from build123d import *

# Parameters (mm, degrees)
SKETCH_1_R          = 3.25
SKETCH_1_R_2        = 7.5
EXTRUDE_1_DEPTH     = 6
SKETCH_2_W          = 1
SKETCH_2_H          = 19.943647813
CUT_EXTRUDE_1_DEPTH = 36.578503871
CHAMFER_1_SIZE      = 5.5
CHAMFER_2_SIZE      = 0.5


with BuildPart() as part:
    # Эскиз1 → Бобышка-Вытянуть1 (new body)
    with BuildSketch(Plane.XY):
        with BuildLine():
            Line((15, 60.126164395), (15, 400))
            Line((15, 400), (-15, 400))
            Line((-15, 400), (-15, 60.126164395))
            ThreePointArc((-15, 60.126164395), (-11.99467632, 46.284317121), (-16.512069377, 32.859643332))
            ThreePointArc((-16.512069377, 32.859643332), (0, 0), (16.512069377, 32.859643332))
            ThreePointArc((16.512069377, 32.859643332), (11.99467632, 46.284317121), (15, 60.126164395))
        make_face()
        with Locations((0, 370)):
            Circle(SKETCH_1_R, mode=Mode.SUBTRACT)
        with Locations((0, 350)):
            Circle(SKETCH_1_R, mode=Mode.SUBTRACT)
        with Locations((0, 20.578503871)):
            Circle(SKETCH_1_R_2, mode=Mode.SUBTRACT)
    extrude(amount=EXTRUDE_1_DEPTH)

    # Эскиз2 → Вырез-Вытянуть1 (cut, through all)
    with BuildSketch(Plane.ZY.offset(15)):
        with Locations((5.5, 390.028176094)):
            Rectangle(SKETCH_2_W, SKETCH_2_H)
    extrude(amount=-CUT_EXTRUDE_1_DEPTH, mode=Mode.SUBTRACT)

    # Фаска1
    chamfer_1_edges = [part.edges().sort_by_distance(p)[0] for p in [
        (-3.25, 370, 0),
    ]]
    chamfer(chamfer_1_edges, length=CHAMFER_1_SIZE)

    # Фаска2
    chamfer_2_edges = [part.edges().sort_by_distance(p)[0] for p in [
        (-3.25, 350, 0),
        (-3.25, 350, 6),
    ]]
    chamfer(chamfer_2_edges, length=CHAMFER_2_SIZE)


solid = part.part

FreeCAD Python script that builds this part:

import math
import FreeCAD as App
import Part
import Sketcher
from FreeCAD import Vector


def edges_at(feature, points):
    """Names of the edges that pass closest to the given points."""
    edges = feature.Shape.Edges
    near = lambda p: min(range(len(edges)), key=lambda i: edges[i].distToShape(Part.Vertex(*p))[0])
    return sorted({f"Edge{near(p) + 1}" for p in points})


def add_polygon(sketch, points):
    """Adds a closed chain of lines whose ends are joined by coincident constraints."""
    first, n = sketch.GeometryCount, len(points)
    for a, b in zip(points, points[1:] + points[:1]):
        sketch.addGeometry(Part.LineSegment(App.Vector(*a, 0), App.Vector(*b, 0)), False)
    for i in range(n):
        sketch.addConstraint(Sketcher.Constraint("Coincident", first + i, 2, first + (i + 1) % n, 1))

doc = App.newDocument("Part")
params = doc.addObject("Spreadsheet::Sheet", "Params")
for row, (alias, value) in enumerate([
    ("sketch1_diameter", "15 mm"),
    ("sketch1_diameter2", "6.5 mm"),
    ("sketch1_width", "30 mm"),
    ("pad1_length", "6 mm"),
    ("sketch2_height", "1 mm"),
    ("chamfer_size", "5.5 mm"),
    ("chamfer2_size", "0.5 mm"),
], start=1):
    params.set(f"A{row}", alias)
    params.set(f"B{row}", "=" + value)
    params.setAlias(f"B{row}", alias)

body = doc.addObject("PartDesign::Body", "Body")

sketch1 = doc.addObject("Sketcher::SketchObject", "Sketch")
body.addObject(sketch1)
sketch1.AttachmentSupport = (doc.XY_Plane, [""])
sketch1.MapMode = "FlatFace"
sketch1.addGeometry(Part.LineSegment(Vector(15, 60.1, 0), Vector(15, 400, 0)), False)
sketch1.addGeometry(Part.LineSegment(Vector(15, 400, 0), Vector(-15, 400, 0)), False)
sketch1.addGeometry(Part.LineSegment(Vector(-15, 400, 0), Vector(-15, 60.1, 0)), False)
sketch1.addGeometry(Part.ArcOfCircle(Part.Circle(Vector(-38.6, 47.8, 0), Vector(0, 0, 1), 26.6), math.radians(-34), math.radians(28)), False)
sketch1.addGeometry(Part.ArcOfCircle(Part.Circle(Vector(0, 20.6, 0), Vector(0, 0, 1), 20.6), math.radians(143), math.radians(397)), False)
sketch1.addGeometry(Part.ArcOfCircle(Part.Circle(Vector(38.6, 47.8, 0), Vector(0, 0, 1), 26.6), math.radians(152), math.radians(214)), False)
sketch1.addGeometry(Part.Circle(Vector(0, 20.6, 0), Vector(0, 0, 1), 7.5), False)
sketch1.addGeometry(Part.Circle(Vector(0, 350, 0), Vector(0, 0, 1), 3.2), False)
sketch1.addGeometry(Part.Circle(Vector(0, 370, 0), Vector(0, 0, 1), 3.2), False)
sketch1.addConstraint(Sketcher.Constraint("Coincident", 0, 2, 1, 1))
sketch1.addConstraint(Sketcher.Constraint("Coincident", 1, 2, 2, 1))
sketch1.addConstraint(Sketcher.Constraint("Coincident", 2, 2, 3, 2))
sketch1.addConstraint(Sketcher.Constraint("Coincident", 3, 1, 4, 1))
sketch1.addConstraint(Sketcher.Constraint("Coincident", 4, 2, 5, 2))
sketch1.addConstraint(Sketcher.Constraint("Coincident", 5, 1, 0, 1))
sketch1.addConstraint(Sketcher.Constraint("Vertical", 0))
sketch1.addConstraint(Sketcher.Constraint("Horizontal", 1))
sketch1.addConstraint(Sketcher.Constraint("Vertical", 2))
sketch1.addConstraint(Sketcher.Constraint("Coincident", 6, 3, 4, 3))
sketch1.addConstraint(Sketcher.Constraint("Equal", 3, 5))
sketch1.addConstraint(Sketcher.Constraint("Equal", 7, 8))
sketch1.addConstraint(Sketcher.Constraint("Symmetric", 3, 3, 5, 3, -2))
sketch1.addConstraint(Sketcher.Constraint("PointOnObject", 4, 3, -2))
sketch1.addConstraint(Sketcher.Constraint("PointOnObject", 7, 3, -2))
sketch1.addConstraint(Sketcher.Constraint("PointOnObject", 8, 3, -2))
sketch1.addConstraint(Sketcher.Constraint("Horizontal", 2, 2, 5, 1))
sketch1.addConstraint(Sketcher.Constraint("Diameter", 6, 15.0))
sketch1.addConstraint(Sketcher.Constraint("Diameter", 7, 6.5))
sketch1.addConstraint(Sketcher.Constraint("DistanceX", 1, 2, 1, 1, 30.0))
sketch1.addConstraint(Sketcher.Constraint("DistanceY", -1, 1, 7, 3, 350.0))
sketch1.addConstraint(Sketcher.Constraint("DistanceY", -1, 1, 8, 3, 370.0))
sketch1.addConstraint(Sketcher.Constraint("DistanceY", -1, 1, 0, 2, 400.0))
sketch1.addConstraint(Sketcher.Constraint("Radius", 3, 26.6288))
sketch1.addConstraint(Sketcher.Constraint("Radius", 4, 20.578504))
sketch1.addConstraint(Sketcher.Constraint("DistanceY", 0, 1, 0, 2, 339.873836))
sketch1.addConstraint(Sketcher.Constraint("DistanceX", 3, 1, -1, 1, 16.512069))
sketch1.addConstraint(Sketcher.Constraint("DistanceX", 3, 3, 5, 3, 77.165251))
sketch1.setExpression("Constraints[17]", "Params.sketch1_diameter")
sketch1.setExpression("Constraints[18]", "Params.sketch1_diameter2")
sketch1.setExpression("Constraints[19]", "Params.sketch1_width")
pad1 = doc.addObject("PartDesign::Pad", "Pad")
body.addObject(pad1)
pad1.Profile = sketch1
pad1.setExpression("Length", "Params.pad1_length")

sketch2 = doc.addObject("Sketcher::SketchObject", "Sketch001")
body.addObject(sketch2)
sketch2.AttachmentSupport = (doc.YZ_Plane, [""])
sketch2.MapMode = "FlatFace"
sketch2.AttachmentOffset = App.Placement(Vector(0, 0, -15), App.Rotation())
add_polygon(sketch2, [(400, 5), (380.1, 5), (380.1, 6), (400, 6)])
sketch2.addConstraint(Sketcher.Constraint("Horizontal", 0))
sketch2.addConstraint(Sketcher.Constraint("Vertical", 1))
sketch2.addConstraint(Sketcher.Constraint("Horizontal", 2))
sketch2.addConstraint(Sketcher.Constraint("Vertical", 3))
sketch2.addConstraint(Sketcher.Constraint("DistanceY", 1, 1, 1, 2, 1.0))
sketch2.addConstraint(Sketcher.Constraint("DistanceY", -1, 1, 0, 2, 5.0))
sketch2.addConstraint(Sketcher.Constraint("DistanceX", -1, 1, 2, 2, 400.0))
sketch2.addConstraint(Sketcher.Constraint("DistanceX", 0, 2, 0, 1, 19.943648))
sketch2.setExpression("Constraints[8]", "Params.sketch2_height")
pocket1 = doc.addObject("PartDesign::Pocket", "Pocket")
body.addObject(pocket1)
pocket1.Profile = sketch2
pocket1.Type = "ThroughAll"
pocket1.Reversed = True
doc.recompute()

chamfer = doc.addObject("PartDesign::Chamfer", "Chamfer")
body.addObject(chamfer)
chamfer.Base = (pocket1, edges_at(pocket1, [(-3.25, 370, 0)]))
chamfer.setExpression("Size", "Params.chamfer_size")
doc.recompute()

chamfer2 = doc.addObject("PartDesign::Chamfer", "Chamfer001")
body.addObject(chamfer2)
chamfer2.Base = (chamfer, edges_at(chamfer, [(-3.25, 350, 0), (-3.25, 350, 6)]))
chamfer2.setExpression("Size", "Params.chamfer2_size")

doc.recompute()
